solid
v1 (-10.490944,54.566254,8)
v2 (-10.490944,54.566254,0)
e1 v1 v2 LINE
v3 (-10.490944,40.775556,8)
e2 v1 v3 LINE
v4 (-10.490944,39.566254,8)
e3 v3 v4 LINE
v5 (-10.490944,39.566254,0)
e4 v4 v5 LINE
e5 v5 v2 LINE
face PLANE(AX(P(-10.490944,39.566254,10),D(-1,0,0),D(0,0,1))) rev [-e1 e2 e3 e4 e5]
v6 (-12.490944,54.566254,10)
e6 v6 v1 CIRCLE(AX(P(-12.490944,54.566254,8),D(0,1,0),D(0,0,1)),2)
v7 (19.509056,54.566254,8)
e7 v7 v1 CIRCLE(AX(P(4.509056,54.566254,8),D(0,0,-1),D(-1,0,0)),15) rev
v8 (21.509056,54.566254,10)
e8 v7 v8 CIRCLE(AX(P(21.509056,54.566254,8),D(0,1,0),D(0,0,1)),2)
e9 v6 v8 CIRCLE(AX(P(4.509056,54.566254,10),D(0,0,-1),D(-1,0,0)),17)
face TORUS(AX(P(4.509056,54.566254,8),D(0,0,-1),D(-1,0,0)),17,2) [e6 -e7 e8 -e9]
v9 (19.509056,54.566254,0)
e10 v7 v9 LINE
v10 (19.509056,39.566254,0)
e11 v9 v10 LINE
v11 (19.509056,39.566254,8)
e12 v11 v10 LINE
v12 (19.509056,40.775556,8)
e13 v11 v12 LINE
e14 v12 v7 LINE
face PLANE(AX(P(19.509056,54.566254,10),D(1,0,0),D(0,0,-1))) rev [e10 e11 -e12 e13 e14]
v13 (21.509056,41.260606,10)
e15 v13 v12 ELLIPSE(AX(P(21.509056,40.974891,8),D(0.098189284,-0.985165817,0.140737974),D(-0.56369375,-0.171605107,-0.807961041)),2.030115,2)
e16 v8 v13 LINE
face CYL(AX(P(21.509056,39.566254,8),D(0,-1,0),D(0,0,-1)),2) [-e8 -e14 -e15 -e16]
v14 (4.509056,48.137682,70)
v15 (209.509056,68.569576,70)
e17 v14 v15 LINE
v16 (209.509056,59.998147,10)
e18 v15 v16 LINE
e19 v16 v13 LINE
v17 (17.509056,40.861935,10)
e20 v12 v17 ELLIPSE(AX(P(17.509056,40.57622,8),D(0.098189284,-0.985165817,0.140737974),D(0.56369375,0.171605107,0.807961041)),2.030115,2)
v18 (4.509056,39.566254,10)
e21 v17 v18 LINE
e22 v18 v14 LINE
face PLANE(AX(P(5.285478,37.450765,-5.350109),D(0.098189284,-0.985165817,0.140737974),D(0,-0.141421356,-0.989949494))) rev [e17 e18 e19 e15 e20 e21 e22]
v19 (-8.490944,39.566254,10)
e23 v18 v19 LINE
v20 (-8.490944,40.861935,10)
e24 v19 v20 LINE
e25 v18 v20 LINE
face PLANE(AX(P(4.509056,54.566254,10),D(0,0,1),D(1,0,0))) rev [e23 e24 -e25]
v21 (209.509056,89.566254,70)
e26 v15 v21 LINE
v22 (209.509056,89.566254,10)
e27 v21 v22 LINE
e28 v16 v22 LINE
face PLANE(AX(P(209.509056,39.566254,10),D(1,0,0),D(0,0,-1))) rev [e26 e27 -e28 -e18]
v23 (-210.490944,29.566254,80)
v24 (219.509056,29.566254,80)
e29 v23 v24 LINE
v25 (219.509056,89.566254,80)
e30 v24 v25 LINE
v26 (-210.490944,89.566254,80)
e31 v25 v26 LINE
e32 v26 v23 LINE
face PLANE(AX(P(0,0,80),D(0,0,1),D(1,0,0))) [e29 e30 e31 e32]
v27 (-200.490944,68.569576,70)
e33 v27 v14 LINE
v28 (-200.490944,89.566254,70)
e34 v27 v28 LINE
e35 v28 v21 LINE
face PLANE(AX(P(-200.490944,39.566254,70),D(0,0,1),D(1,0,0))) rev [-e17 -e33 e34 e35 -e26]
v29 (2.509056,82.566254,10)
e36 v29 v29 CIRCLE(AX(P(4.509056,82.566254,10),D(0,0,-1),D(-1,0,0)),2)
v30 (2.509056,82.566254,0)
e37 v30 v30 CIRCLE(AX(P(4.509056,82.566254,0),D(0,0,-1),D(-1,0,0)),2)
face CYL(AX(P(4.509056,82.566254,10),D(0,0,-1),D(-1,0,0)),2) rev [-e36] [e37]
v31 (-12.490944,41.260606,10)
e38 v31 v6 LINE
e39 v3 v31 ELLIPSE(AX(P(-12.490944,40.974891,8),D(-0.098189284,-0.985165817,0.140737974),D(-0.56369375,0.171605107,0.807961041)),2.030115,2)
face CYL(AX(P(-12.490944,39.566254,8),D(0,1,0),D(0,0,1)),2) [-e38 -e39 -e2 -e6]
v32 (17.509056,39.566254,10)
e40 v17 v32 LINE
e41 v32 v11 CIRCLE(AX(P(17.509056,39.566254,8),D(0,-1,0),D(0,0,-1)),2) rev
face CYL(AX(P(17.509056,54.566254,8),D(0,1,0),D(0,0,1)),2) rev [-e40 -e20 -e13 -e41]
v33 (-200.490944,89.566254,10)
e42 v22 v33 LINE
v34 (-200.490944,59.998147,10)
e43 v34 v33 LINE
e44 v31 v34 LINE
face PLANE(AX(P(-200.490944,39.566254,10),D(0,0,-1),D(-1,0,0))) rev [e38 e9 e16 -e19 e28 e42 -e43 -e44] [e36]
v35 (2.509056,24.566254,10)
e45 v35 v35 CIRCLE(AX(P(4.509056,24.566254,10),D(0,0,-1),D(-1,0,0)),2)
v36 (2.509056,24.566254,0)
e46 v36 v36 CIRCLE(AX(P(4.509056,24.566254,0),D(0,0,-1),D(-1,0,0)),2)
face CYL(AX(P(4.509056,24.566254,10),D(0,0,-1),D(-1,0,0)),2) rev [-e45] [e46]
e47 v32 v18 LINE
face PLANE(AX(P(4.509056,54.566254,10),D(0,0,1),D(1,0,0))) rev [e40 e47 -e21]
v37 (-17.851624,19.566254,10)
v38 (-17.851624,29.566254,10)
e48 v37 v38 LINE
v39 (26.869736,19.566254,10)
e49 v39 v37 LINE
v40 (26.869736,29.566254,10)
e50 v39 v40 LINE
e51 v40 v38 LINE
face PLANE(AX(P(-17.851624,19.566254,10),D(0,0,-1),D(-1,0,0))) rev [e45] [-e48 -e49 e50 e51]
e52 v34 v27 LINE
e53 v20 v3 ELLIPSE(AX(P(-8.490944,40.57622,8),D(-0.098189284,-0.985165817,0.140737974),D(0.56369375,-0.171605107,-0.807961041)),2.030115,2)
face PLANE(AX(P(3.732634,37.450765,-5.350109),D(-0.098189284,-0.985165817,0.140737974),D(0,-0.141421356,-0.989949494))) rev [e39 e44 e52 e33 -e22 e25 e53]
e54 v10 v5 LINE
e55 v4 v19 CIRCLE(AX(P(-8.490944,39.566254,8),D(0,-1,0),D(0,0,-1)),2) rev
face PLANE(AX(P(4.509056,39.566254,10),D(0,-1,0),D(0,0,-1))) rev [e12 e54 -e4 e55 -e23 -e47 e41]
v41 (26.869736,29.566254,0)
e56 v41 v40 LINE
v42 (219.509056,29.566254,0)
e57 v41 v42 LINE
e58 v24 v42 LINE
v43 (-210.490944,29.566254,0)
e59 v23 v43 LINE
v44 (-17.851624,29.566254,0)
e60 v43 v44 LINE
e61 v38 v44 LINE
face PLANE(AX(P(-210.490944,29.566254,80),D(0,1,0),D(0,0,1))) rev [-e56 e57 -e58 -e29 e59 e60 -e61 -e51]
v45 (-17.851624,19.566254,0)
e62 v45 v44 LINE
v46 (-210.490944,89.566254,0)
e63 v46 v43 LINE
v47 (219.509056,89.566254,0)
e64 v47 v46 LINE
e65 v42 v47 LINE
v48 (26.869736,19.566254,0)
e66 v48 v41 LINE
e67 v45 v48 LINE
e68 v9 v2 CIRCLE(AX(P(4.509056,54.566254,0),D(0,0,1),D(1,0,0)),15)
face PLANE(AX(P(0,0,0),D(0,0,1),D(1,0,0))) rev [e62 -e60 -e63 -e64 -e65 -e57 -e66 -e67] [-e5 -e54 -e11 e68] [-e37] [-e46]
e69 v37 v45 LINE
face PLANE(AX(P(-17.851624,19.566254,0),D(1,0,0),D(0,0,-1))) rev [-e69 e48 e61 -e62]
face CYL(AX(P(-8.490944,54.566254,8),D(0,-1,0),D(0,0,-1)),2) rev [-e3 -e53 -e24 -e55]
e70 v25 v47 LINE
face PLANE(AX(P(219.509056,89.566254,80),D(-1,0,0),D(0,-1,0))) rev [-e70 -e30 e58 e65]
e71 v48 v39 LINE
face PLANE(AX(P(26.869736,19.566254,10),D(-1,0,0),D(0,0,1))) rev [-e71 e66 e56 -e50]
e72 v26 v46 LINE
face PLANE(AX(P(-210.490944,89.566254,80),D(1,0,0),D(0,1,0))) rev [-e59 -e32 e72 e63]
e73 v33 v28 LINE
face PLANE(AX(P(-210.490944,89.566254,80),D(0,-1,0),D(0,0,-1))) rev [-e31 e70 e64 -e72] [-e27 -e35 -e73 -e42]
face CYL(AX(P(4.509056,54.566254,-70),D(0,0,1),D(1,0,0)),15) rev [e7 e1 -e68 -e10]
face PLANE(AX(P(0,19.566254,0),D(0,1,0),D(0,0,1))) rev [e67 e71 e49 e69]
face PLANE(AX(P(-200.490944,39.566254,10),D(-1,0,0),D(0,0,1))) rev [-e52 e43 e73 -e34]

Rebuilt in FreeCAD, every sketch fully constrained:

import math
import FreeCAD as App
import Part
import Sketcher
from FreeCAD import Vector


def edges_at(feature, points):
    """Names of the edges that pass closest to the given points."""
    edges = feature.Shape.Edges
    near = lambda p: min(range(len(edges)), key=lambda i: edges[i].distToShape(Part.Vertex(*p))[0])
    return sorted({f"Edge{near(p) + 1}" for p in points})


def add_polygon(sketch, points):
    """Adds a closed chain of lines whose ends are joined by coincident constraints."""
    first, n = sketch.GeometryCount, len(points)
    for a, b in zip(points, points[1:] + points[:1]):
        sketch.addGeometry(Part.LineSegment(App.Vector(*a, 0), App.Vector(*b, 0)), False)
    for i in range(n):
        sketch.addConstraint(Sketcher.Constraint("Coincident", first + i, 2, first + (i + 1) % n, 1))

doc = App.newDocument("Part")
body = doc.addObject("PartDesign::Body", "Body")

# Sketch on XY plane
sketch1 = body.newObject("Sketcher::SketchObject", "Sketch")
sketch1.AttachmentSupport = (doc.getObject("XY_Plane"), [""])
sketch1.MapMode = "FlatFace"
add_polygon(sketch1, [(-210.490944, 89.566254), (-210.490944, 29.566254), (219.509056, 29.566254), (219.509056, 89.566254)])  # lines 0-3
sketch1.addConstraint(Sketcher.Constraint("Vertical", 0))
sketch1.addConstraint(Sketcher.Constraint("Horizontal", 1))
sketch1.addConstraint(Sketcher.Constraint("Vertical", 2))
sketch1.addConstraint(Sketcher.Constraint("Horizontal", 3))
sketch1.addConstraint(Sketcher.Constraint("DistanceX", 1, 1, 1, 2, 430.0))
sketch1.addConstraint(Sketcher.Constraint("DistanceY", 0, 2, 0, 1, 60.0))
sketch1.addConstraint(Sketcher.Constraint("DistanceX", 0, 2, -1, 1, 210.490944))
sketch1.addConstraint(Sketcher.Constraint("DistanceY", -1, 1, 0, 2, 29.566254))
pad1 = body.newObject("PartDesign::Pad", "Pad")
pad1.Profile = sketch1
pad1.Length = 80

# Sketch on XZ plane
sketch2 = body.newObject("Sketcher::SketchObject", "Sketch001")
sketch2.AttachmentSupport = (doc.getObject("XZ_Plane"), [""])
sketch2.MapMode = "FlatFace"
sketch2.AttachmentOffset = App.Placement(Vector(0, 0, -89.566254), App.Rotation())
add_polygon(sketch2, [(-200.490944, 10), (-200.490944, 70), (209.509056, 70), (209.509056, 10)])  # lines 0-3
sketch2.addConstraint(Sketcher.Constraint("Vertical", 0))
sketch2.addConstraint(Sketcher.Constraint("Horizontal", 1))
sketch2.addConstraint(Sketcher.Constraint("Vertical", 2))
sketch2.addConstraint(Sketcher.Constraint("Horizontal", 3))
sketch2.addConstraint(Sketcher.Constraint("DistanceX", 1, 1, 1, 2, 410.0))
sketch2.addConstraint(Sketcher.Constraint("DistanceY", 0, 1, 0, 2, 60.0))
sketch2.addConstraint(Sketcher.Constraint("DistanceY", -1, 1, 0, 2, 70.0))
sketch2.addConstraint(Sketcher.Constraint("DistanceX", 0, 2, -1, 1, 200.490944))
pocket1 = body.newObject("PartDesign::Pocket", "Pocket")
pocket1.Profile = sketch2
pocket1.Length = 50
pocket1.Reversed = True

# Sketch on XY plane
sketch3 = body.newObject("Sketcher::SketchObject", "Sketch002")
sketch3.AttachmentSupport = (doc.getObject("XY_Plane"), [""])
sketch3.MapMode = "FlatFace"
sketch3.AttachmentOffset = App.Placement(Vector(0, 0, 10), App.Rotation())
add_polygon(sketch3, [(-200.490944, 59.566254), (-200.490944, 39.566254), (4.509056, 39.566254)])  # lines 0-2
add_polygon(sketch3, [(209.509056, 59.566254), (4.509056, 39.566254), (209.509056, 39.566254)])  # lines 3-5
sketch3.addConstraint(Sketcher.Constraint("Vertical", 0))
sketch3.addConstraint(Sketcher.Constraint("Horizontal", 1))
sketch3.addConstraint(Sketcher.Constraint("Horizontal", 4))
sketch3.addConstraint(Sketcher.Constraint("Vertical", 5))
sketch3.addConstraint(Sketcher.Constraint("Coincident", 3, 2, 1, 2))
sketch3.addConstraint(Sketcher.Constraint("Horizontal", 2, 2, 5, 2))
sketch3.addConstraint(Sketcher.Constraint("Equal", 1, 4))
sketch3.addConstraint(Sketcher.Constraint("DistanceX", 1, 1, 1, 2, 205.0))
sketch3.addConstraint(Sketcher.Constraint("DistanceY", 0, 2, 0, 1, 20.0))
sketch3.addConstraint(Sketcher.Constraint("DistanceX", 0, 2, -1, 1, 200.490944))
sketch3.addConstraint(Sketcher.Constraint("DistanceY", -1, 1, 0, 2, 39.566254))
pad2 = body.newObject("PartDesign::Pad", "Pad001")
pad2.Profile = sketch3
pad2.Length = 60

# Sketch on an angled plane
sketch4 = body.newObject("Sketcher::SketchObject", "Sketch003")
sketch4.Placement = App.Placement(Vector(3.732634, 37.450765, -5.350109), App.Rotation(Vector(0.995167757, -0.097202432, 0.013886062), Vector(0, -0.141421356, -0.989949494), Vector(0.098189284, 0.985165817, -0.140737974), "ZXY"))
add_polygon(sketch4, [(0.780192, -15.495008), (-209.853756, -12.98694), (-207.594167, -81.787183), (2.87464, -83.936672)])  # lines 0-3
sketch4.addConstraint(Sketcher.Constraint("Distance", 0, 210.648879))
sketch4.addConstraint(Sketcher.Constraint("Distance", 1, 68.837339))
sketch4.addConstraint(Sketcher.Constraint("DistanceY", 0, 2, -1, 1, 12.98694))
sketch4.addConstraint(Sketcher.Constraint("DistanceX", -1, 1, 2, 2, 2.87464))
sketch4.addConstraint(Sketcher.Constraint("DistanceY", 2, 2, -1, 1, 83.936672))
sketch4.addConstraint(Sketcher.Constraint("DistanceX", -1, 1, 3, 2, 0.780192))
sketch4.addConstraint(Sketcher.Constraint("DistanceY", 3, 2, -1, 1, 15.495008))
sketch4.addConstraint(Sketcher.Constraint("DistanceX", 0, 2, 1, 2, 2.259588))
pad3 = body.newObject("PartDesign::Pad", "Pad002")
pad3.Profile = sketch4
pad3.Length = 20
pad3.Reversed = True

# Sketch on XZ plane
sketch5 = body.newObject("Sketcher::SketchObject", "Sketch004")
sketch5.AttachmentSupport = (doc.getObject("XZ_Plane"), [""])
sketch5.MapMode = "FlatFace"
sketch5.AttachmentOffset = App.Placement(Vector(0, 0, -89.566254), App.Rotation())
add_polygon(sketch5, [(-25.321261, 80), (-25.321261, 82.901511), (11.978202, 82.901511), (11.978202, 80)])  # lines 0-3
sketch5.addConstraint(Sketcher.Constraint("Vertical", 0))
sketch5.addConstraint(Sketcher.Constraint("Horizontal", 1))
sketch5.addConstraint(Sketcher.Constraint("Vertical", 2))
sketch5.addConstraint(Sketcher.Constraint("Horizontal", 3))
sketch5.addConstraint(Sketcher.Constraint("DistanceY", -1, 1, 2, 2, 80.0))
sketch5.addConstraint(Sketcher.Constraint("DistanceY", 0, 1, 0, 2, 2.901511))
sketch5.addConstraint(Sketcher.Constraint("DistanceX", 1, 1, 1, 2, 37.299463))
sketch5.addConstraint(Sketcher.Constraint("DistanceX", 0, 2, -1, 1, 25.321261))
pocket2 = body.newObject("PartDesign::Pocket", "Pocket001")
pocket2.Profile = sketch5
pocket2.Length = 80
pocket2.Reversed = True

# Sketch on XY plane
sketch6 = body.newObject("Sketcher::SketchObject", "Sketch005")
sketch6.AttachmentSupport = (doc.getObject("XY_Plane"), [""])
sketch6.MapMode = "FlatFace"
sketch6.AttachmentOffset = App.Placement(Vector(0, 0, 80), App.Rotation())
add_polygon(sketch6, [(-141.202313, 29.566254), (-141.202313, -37.165346), (76.500478, -37.165346), (76.500478, 29.566254)])  # lines 0-3
sketch6.addConstraint(Sketcher.Constraint("Vertical", 0))
sketch6.addConstraint(Sketcher.Constraint("Horizontal", 1))
sketch6.addConstraint(Sketcher.Constraint("Vertical", 2))
sketch6.addConstraint(Sketcher.Constraint("Horizontal", 3))
sketch6.addConstraint(Sketcher.Constraint("DistanceY", 0, 2, 0, 1, 66.731599))
sketch6.addConstraint(Sketcher.Constraint("DistanceX", 1, 1, 1, 2, 217.702791))
sketch6.addConstraint(Sketcher.Constraint("DistanceX", -1, 1, 1, 2, 76.500478))
sketch6.addConstraint(Sketcher.Constraint("DistanceY", 0, 2, -1, 1, 37.165346))
pocket3 = body.newObject("PartDesign::Pocket", "Pocket002")
pocket3.Profile = sketch6
pocket3.Length = 80
doc.recompute()

datumplane = body.newObject("PartDesign::Plane", "DatumPlane")
datumplane.AttachmentSupport = (doc.getObject("YZ_Plane"), [""])
datumplane.MapMode = "FlatFace"
datumplane.AttachmentOffset = App.Placement(Vector(0, 0, 4.509056), App.Rotation())
mirrored = body.newObject("PartDesign::Mirrored", "Mirrored")
mirrored.Originals = [pad3]
mirrored.MirrorPlane = (datumplane, [""])
body.Tip = mirrored

# Sketch on XZ plane
sketch7 = body.newObject("Sketcher::SketchObject", "Sketch006")
sketch7.AttachmentSupport = (doc.getObject("XZ_Plane"), [""])
sketch7.MapMode = "FlatFace"
sketch7.AttachmentOffset = App.Placement(Vector(0, 0, -89.566254), App.Rotation())
add_polygon(sketch7, [(-48.034882, 80), (-48.034882, 103.789259), (83.991327, 103.789259), (83.991327, 80)])  # lines 0-3
sketch7.addConstraint(Sketcher.Constraint("Vertical", 0))
sketch7.addConstraint(Sketcher.Constraint("Horizontal", 1))
sketch7.addConstraint(Sketcher.Constraint("Vertical", 2))
sketch7.addConstraint(Sketcher.Constraint("Horizontal", 3))
sketch7.addConstraint(Sketcher.Constraint("DistanceY", -1, 1, 2, 2, 80.0))
sketch7.addConstraint(Sketcher.Constraint("DistanceX", 1, 1, 1, 2, 132.026209))
sketch7.addConstraint(Sketcher.Constraint("DistanceY", 0, 1, 0, 2, 23.789259))
sketch7.addConstraint(Sketcher.Constraint("DistanceX", 0, 2, -1, 1, 48.034882))
pocket4 = body.newObject("PartDesign::Pocket", "Pocket003")
pocket4.Profile = sketch7
pocket4.Length = 80
pocket4.Reversed = True

# Sketch on XY plane
sketch8 = body.newObject("Sketcher::SketchObject", "Sketch007")
sketch8.AttachmentSupport = (doc.getObject("XY_Plane"), [""])
sketch8.MapMode = "FlatFace"
sketch8.AttachmentOffset = App.Placement(Vector(0, 0, 80), App.Rotation())
add_polygon(sketch8, [(-46.864437, 29.566254), (-46.864437, -33.558545), (185.117785, -33.558545), (185.117785, 29.566254)])  # lines 0-3
sketch8.addConstraint(Sketcher.Constraint("Vertical", 0))
sketch8.addConstraint(Sketcher.Constraint("Horizontal", 1))
sketch8.addConstraint(Sketcher.Constraint("Vertical", 2))
sketch8.addConstraint(Sketcher.Constraint("Horizontal", 3))
sketch8.addConstraint(Sketcher.Constraint("DistanceY", 0, 2, 0, 1, 63.124798))
sketch8.addConstraint(Sketcher.Constraint("DistanceX", 1, 1, 1, 2, 231.982221))
sketch8.addConstraint(Sketcher.Constraint("DistanceX", 0, 2, -1, 1, 46.864437))
sketch8.addConstraint(Sketcher.Constraint("DistanceY", 0, 2, -1, 1, 33.558545))
pocket5 = body.newObject("PartDesign::Pocket", "Pocket004")
pocket5.Profile = sketch8
pocket5.Length = 80

# Sketch on XY plane
sketch9 = body.newObject("Sketcher::SketchObject", "Sketch008")
sketch9.AttachmentSupport = (doc.getObject("XY_Plane"), [""])
sketch9.MapMode = "FlatFace"
sketch9.AttachmentOffset = App.Placement(Vector(0, 0, 10), App.Rotation())
sketch9.addGeometry(Part.Circle(Vector(4.509056, 54.566254, 0), Vector(0, 0, 1), 15), False)
sketch9.addConstraint(Sketcher.Constraint("Diameter", 0, 30.0))
sketch9.addConstraint(Sketcher.Constraint("DistanceX", -1, 1, 0, 3, 4.509056))
sketch9.addConstraint(Sketcher.Constraint("DistanceY", -1, 1, 0, 3, 54.566254))
pocket6 = body.newObject("PartDesign::Pocket", "Pocket005")
pocket6.Profile = sketch9
pocket6.Length = 80

# Sketch on XY plane
sketch10 = body.newObject("Sketcher::SketchObject", "Sketch009")
sketch10.AttachmentSupport = (doc.getObject("XY_Plane"), [""])
sketch10.MapMode = "FlatFace"
add_polygon(sketch10, [(19.509056, 54.566254), (19.509056, 39.566254), (-10.490944, 39.566254), (-10.490944, 54.566254)])  # lines 0-3
sketch10.addConstraint(Sketcher.Constraint("Vertical", 0))
sketch10.addConstraint(Sketcher.Constraint("Horizontal", 1))
sketch10.addConstraint(Sketcher.Constraint("Vertical", 2))
sketch10.addConstraint(Sketcher.Constraint("Horizontal", 3))
sketch10.addConstraint(Sketcher.Constraint("DistanceX", 1, 2, 1, 1, 30.0))
sketch10.addConstraint(Sketcher.Constraint("DistanceY", 0, 2, 0, 1, 15.0))
sketch10.addConstraint(Sketcher.Constraint("DistanceX", -1, 1, 0, 2, 19.509056))
sketch10.addConstraint(Sketcher.Constraint("DistanceY", -1, 1, 0, 2, 39.566254))
pocket7 = body.newObject("PartDesign::Pocket", "Pocket006")
pocket7.Profile = sketch10
pocket7.Length = 10
pocket7.Reversed = True
doc.recompute()

fillet = body.newObject("PartDesign::Fillet", "Fillet")
fillet.Base = (pocket7, edges_at(pocket7, [(4.509, 69.566, 10), (-10.491, 47.814, 10), (19.509, 47.814, 10)]))
fillet.Radius = 2
doc.recompute()

fillet2 = body.newObject("PartDesign::Fillet", "Fillet001")
fillet2.Base = (fillet, edges_at(fillet, [(19.509, 40.314, 10), (-10.491, 40.314, 10)]))
fillet2.Radius = 2

# Sketch on XZ plane
sketch11 = body.newObject("Sketcher::SketchObject", "Sketch010")
sketch11.AttachmentSupport = (doc.getObject("XZ_Plane"), [""])
sketch11.MapMode = "FlatFace"
sketch11.AttachmentOffset = App.Placement(Vector(0, 0, -29.566254), App.Rotation())
add_polygon(sketch11, [(-17.851624, 10), (-17.851624, 0), (26.869736, 0), (26.869736, 10)])  # lines 0-3
sketch11.addConstraint(Sketcher.Constraint("Vertical", 0))
sketch11.addConstraint(Sketcher.Constraint("Horizontal", 1))
sketch11.addConstraint(Sketcher.Constraint("Vertical", 2))
sketch11.addConstraint(Sketcher.Constraint("Horizontal", 3))
sketch11.addConstraint(Sketcher.Constraint("PointOnObject", 0, 2, -1))
sketch11.addConstraint(Sketcher.Constraint("DistanceY", 0, 2, 0, 1, 10.0))
sketch11.addConstraint(Sketcher.Constraint("DistanceX", 1, 1, 1, 2, 44.72136))
sketch11.addConstraint(Sketcher.Constraint("DistanceX", 0, 2, -1, 1, 17.851624))
pad4 = body.newObject("PartDesign::Pad", "Pad003")
pad4.Profile = sketch11
pad4.Length = 10

# Sketch on XY plane
sketch12 = body.newObject("Sketcher::SketchObject", "Sketch011")
sketch12.AttachmentSupport = (doc.getObject("XY_Plane"), [""])
sketch12.MapMode = "FlatFace"
sketch12.addGeometry(Part.ArcOfCircle(Part.Circle(Vector(4.509056, 24.566254, 0), Vector(0, 0, 1), 2), math.radians(2.292443), math.radians(177.707557)), False)
sketch12.addGeometry(Part.ArcOfCircle(Part.Circle(Vector(4.509056, 24.566254, 0), Vector(0, 0, 1), 2), math.radians(180), math.radians(362.292443)), False)
sketch12.addGeometry(Part.ArcOfCircle(Part.Circle(Vector(4.509054, 24.566254, 0), Vector(0, 0, 1), 1.999998), math.radians(177.707556), math.radians(180.000001)), False)
sketch12.addConstraint(Sketcher.Constraint("Tangent", 0, 1, 1, 2))
sketch12.addConstraint(Sketcher.Constraint("Tangent", 1, 1, 2, 2))
sketch12.addConstraint(Sketcher.Constraint("Tangent", 2, 1, 0, 2))
sketch12.addConstraint(Sketcher.Constraint("Horizontal", 2, 3, 1, 1))
sketch12.addConstraint(Sketcher.Constraint("Horizontal", 0, 1, 2, 1))
sketch12.addConstraint(Sketcher.Constraint("Radius", 0, 2.0))
sketch12.addConstraint(Sketcher.Constraint("DistanceY", 0, 3, 0, 1, 0.08))
sketch12.addConstraint(Sketcher.Constraint("DistanceX", -1, 1, 0, 3, 4.509056))
sketch12.addConstraint(Sketcher.Constraint("DistanceY", -1, 1, 0, 3, 24.566254))
pocket8 = body.newObject("PartDesign::Pocket", "Pocket007")
pocket8.Profile = sketch12
pocket8.Length = 10
pocket8.Reversed = True

# Sketch on XY plane
sketch13 = body.newObject("Sketcher::SketchObject", "Sketch012")
sketch13.AttachmentSupport = (doc.getObject("XY_Plane"), [""])
sketch13.MapMode = "FlatFace"
sketch13.addGeometry(Part.Circle(Vector(4.509056, 82.566254, 0), Vector(0, 0, 1), 2), False)
sketch13.addConstraint(Sketcher.Constraint("Diameter", 0, 4.0))
sketch13.addConstraint(Sketcher.Constraint("DistanceX", -1, 1, 0, 3, 4.509056))
sketch13.addConstraint(Sketcher.Constraint("DistanceY", -1, 1, 0, 3, 82.566254))
pocket9 = body.newObject("PartDesign::Pocket", "Pocket008")
pocket9.Profile = sketch13
pocket9.Length = 10
pocket9.Reversed = True

doc.recompute()
